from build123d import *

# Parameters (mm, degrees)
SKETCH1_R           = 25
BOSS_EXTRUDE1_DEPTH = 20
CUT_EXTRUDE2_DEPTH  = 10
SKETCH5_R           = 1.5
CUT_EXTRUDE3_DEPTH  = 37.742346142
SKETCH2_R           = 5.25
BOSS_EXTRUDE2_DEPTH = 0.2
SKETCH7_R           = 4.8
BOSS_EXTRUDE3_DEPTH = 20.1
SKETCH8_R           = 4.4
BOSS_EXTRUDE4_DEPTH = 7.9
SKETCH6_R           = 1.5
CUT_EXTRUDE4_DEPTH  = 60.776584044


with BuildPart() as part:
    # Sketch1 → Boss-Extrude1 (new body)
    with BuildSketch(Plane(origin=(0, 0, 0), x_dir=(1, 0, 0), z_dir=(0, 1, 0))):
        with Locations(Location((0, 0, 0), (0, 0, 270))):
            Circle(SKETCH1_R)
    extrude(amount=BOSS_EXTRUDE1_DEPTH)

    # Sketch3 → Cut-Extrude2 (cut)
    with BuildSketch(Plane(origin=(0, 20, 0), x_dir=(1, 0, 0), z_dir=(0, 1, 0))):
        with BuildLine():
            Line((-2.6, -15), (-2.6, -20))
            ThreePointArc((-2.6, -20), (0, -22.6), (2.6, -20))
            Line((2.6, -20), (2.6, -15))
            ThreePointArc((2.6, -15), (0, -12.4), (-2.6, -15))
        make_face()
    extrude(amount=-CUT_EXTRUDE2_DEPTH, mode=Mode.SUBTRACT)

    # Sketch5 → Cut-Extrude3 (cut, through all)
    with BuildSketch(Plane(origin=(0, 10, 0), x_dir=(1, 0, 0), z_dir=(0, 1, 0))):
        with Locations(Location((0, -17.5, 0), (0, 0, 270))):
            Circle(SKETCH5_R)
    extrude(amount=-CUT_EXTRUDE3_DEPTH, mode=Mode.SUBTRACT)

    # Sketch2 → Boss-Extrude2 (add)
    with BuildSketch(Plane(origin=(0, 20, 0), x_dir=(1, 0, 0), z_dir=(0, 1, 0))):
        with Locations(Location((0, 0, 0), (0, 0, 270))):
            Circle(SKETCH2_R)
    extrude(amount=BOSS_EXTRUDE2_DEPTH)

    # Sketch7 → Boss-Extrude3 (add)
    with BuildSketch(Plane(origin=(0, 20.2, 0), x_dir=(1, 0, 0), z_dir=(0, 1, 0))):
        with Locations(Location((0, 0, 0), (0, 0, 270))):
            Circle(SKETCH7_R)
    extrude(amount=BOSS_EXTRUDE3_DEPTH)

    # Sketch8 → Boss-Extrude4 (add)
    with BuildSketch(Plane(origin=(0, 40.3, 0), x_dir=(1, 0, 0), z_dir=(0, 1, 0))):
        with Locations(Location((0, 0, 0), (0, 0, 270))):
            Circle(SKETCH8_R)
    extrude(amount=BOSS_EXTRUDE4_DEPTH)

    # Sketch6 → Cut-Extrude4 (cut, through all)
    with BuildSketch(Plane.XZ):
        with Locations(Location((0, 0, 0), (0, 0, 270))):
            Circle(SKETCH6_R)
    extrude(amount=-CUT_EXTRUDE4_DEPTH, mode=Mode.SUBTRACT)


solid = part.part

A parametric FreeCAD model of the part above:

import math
import FreeCAD as App
import Part
import Sketcher
from FreeCAD import Vector

doc = App.newDocument("Part")
body = doc.addObject("PartDesign::Body", "Body")

# Sketch on XZ plane
sketch1 = body.newObject("Sketcher::SketchObject", "Sketch")
sketch1.AttachmentSupport = (doc.getObject("XZ_Plane"), [""])
sketch1.MapMode = "FlatFace"
sketch1.addGeometry(Part.Circle(Vector(0, 0, 0), Vector(0, 0, 1), 25), False)
sketch1.addConstraint([
    Sketcher.Constraint("Coincident", 0, 3, -1, 1),
    Sketcher.Constraint("Diameter", 0, 50.0),
])
pad1 = body.newObject("PartDesign::Pad", "Pad")
pad1.Profile = sketch1
pad1.Length = 20
pad1.Reversed = True

# Sketch on XZ plane
sketch2 = body.newObject("Sketcher::SketchObject", "Sketch001")
sketch2.AttachmentSupport = (doc.getObject("XZ_Plane"), [""])
sketch2.MapMode = "FlatFace"
sketch2.AttachmentOffset = App.Placement(Vector(0, 0, -20), App.Rotation())
sketch2.addGeometry([
    Part.LineSegment(Vector(-2.6, 15, 0), Vector(-2.6, 20, 0)),
    Part.ArcOfCircle(Part.Circle(Vector(0, 20, 0), Vector(0, 0, 1), 2.6), math.radians(0), math.radians(180)),
    Part.LineSegment(Vector(2.6, 20, 0), Vector(2.6, 15, 0)),
    Part.ArcOfCircle(Part.Circle(Vector(0, 15, 0), Vector(0, 0, 1), 2.6), math.radians(180), math.radians(360)),
], False)
sketch2.addConstraint([
    Sketcher.Constraint("Tangent", 0, 2, 1, 2),
    Sketcher.Constraint("Tangent", 1, 1, 2, 1),
    Sketcher.Constraint("Tangent", 2, 2, 3, 2),
    Sketcher.Constraint("Tangent", 3, 1, 0, 1),
    Sketcher.Constraint("Vertical", 0),
    Sketcher.Constraint("Vertical", 2),
    Sketcher.Constraint("PointOnObject", 1, 3, -2),
    Sketcher.Constraint("Radius", 1, 2.6),
    Sketcher.Constraint("DistanceY", 0, 1, 0, 2, 5.0),
    Sketcher.Constraint("DistanceY", -1, 1, 1, 3, 20.0),
])
pocket1 = body.newObject("PartDesign::Pocket", "Pocket")
pocket1.Profile = sketch2
pocket1.Length = 10
pocket1.Reversed = True

# Sketch on XZ plane
sketch3 = body.newObject("Sketcher::SketchObject", "Sketch002")
sketch3.AttachmentSupport = (doc.getObject("XZ_Plane"), [""])
sketch3.MapMode = "FlatFace"
sketch3.AttachmentOffset = App.Placement(Vector(0, 0, -10), App.Rotation())
sketch3.addGeometry(Part.Circle(Vector(0, 17.5, 0), Vector(0, 0, 1), 1.5), False)
sketch3.addConstraint([
    Sketcher.Constraint("PointOnObject", 0, 3, -2),
    Sketcher.Constraint("Diameter", 0, 3.0),
    Sketcher.Constraint("DistanceY", -1, 1, 0, 3, 17.5),
])
pocket2 = body.newObject("PartDesign::Pocket", "Pocket001")
pocket2.Profile = sketch3
pocket2.Type = "ThroughAll"
pocket2.Reversed = True

# Sketch on XZ plane
sketch4 = body.newObject("Sketcher::SketchObject", "Sketch003")
sketch4.AttachmentSupport = (doc.getObject("XZ_Plane"), [""])
sketch4.MapMode = "FlatFace"
sketch4.AttachmentOffset = App.Placement(Vector(0, 0, -20), App.Rotation())
sketch4.addGeometry(Part.Circle(Vector(0, 0, 0), Vector(0, 0, 1), 5), False)
sketch4.addConstraint([
    Sketcher.Constraint("Coincident", 0, 3, -1, 1),
    Sketcher.Constraint("Diameter", 0, 10.5),
])
pad2 = body.newObject("PartDesign::Pad", "Pad001")
pad2.Profile = sketch4
pad2.Length = 0.2
pad2.Reversed = True

# Sketch on XZ plane
sketch5 = body.newObject("Sketcher::SketchObject", "Sketch004")
sketch5.AttachmentSupport = (doc.getObject("XZ_Plane"), [""])
sketch5.MapMode = "FlatFace"
sketch5.AttachmentOffset = App.Placement(Vector(0, 0, -20.2), App.Rotation())
sketch5.addGeometry(Part.Circle(Vector(0, 0, 0), Vector(0, 0, 1), 4.8), False)
sketch5.addConstraint([
    Sketcher.Constraint("Coincident", 0, 3, -1, 1),
    Sketcher.Constraint("Diameter", 0, 9.6),
])
pad3 = body.newObject("PartDesign::Pad", "Pad002")
pad3.Profile = sketch5
pad3.Length = 20.1
pad3.Reversed = True

# Sketch on XZ plane
sketch6 = body.newObject("Sketcher::SketchObject", "Sketch005")
sketch6.AttachmentSupport = (doc.getObject("XZ_Plane"), [""])
sketch6.MapMode = "FlatFace"
sketch6.AttachmentOffset = App.Placement(Vector(0, 0, -40.3), App.Rotation())
sketch6.addGeometry(Part.Circle(Vector(0, 0, 0), Vector(0, 0, 1), 4.4), False)
sketch6.addConstraint([
    Sketcher.Constraint("Coincident", 0, 3, -1, 1),
    Sketcher.Constraint("Diameter", 0, 8.8),
])
pad4 = body.newObject("PartDesign::Pad", "Pad003")
pad4.Profile = sketch6
pad4.Length = 7.9
pad4.Reversed = True

# Sketch on XZ plane
sketch7 = body.newObject("Sketcher::SketchObject", "Sketch006")
sketch7.AttachmentSupport = (doc.getObject("XZ_Plane"), [""])
sketch7.MapMode = "FlatFace"
sketch7.addGeometry(Part.Circle(Vector(0, 0, 0), Vector(0, 0, 1), 1.5), False)
sketch7.addConstraint([
    Sketcher.Constraint("Coincident", 0, 3, -1, 1),
    Sketcher.Constraint("Diameter", 0, 3.0),
])
pocket3 = body.newObject("PartDesign::Pocket", "Pocket002")
pocket3.Profile = sketch7
pocket3.Type = "ThroughAll"

doc.recompute()
